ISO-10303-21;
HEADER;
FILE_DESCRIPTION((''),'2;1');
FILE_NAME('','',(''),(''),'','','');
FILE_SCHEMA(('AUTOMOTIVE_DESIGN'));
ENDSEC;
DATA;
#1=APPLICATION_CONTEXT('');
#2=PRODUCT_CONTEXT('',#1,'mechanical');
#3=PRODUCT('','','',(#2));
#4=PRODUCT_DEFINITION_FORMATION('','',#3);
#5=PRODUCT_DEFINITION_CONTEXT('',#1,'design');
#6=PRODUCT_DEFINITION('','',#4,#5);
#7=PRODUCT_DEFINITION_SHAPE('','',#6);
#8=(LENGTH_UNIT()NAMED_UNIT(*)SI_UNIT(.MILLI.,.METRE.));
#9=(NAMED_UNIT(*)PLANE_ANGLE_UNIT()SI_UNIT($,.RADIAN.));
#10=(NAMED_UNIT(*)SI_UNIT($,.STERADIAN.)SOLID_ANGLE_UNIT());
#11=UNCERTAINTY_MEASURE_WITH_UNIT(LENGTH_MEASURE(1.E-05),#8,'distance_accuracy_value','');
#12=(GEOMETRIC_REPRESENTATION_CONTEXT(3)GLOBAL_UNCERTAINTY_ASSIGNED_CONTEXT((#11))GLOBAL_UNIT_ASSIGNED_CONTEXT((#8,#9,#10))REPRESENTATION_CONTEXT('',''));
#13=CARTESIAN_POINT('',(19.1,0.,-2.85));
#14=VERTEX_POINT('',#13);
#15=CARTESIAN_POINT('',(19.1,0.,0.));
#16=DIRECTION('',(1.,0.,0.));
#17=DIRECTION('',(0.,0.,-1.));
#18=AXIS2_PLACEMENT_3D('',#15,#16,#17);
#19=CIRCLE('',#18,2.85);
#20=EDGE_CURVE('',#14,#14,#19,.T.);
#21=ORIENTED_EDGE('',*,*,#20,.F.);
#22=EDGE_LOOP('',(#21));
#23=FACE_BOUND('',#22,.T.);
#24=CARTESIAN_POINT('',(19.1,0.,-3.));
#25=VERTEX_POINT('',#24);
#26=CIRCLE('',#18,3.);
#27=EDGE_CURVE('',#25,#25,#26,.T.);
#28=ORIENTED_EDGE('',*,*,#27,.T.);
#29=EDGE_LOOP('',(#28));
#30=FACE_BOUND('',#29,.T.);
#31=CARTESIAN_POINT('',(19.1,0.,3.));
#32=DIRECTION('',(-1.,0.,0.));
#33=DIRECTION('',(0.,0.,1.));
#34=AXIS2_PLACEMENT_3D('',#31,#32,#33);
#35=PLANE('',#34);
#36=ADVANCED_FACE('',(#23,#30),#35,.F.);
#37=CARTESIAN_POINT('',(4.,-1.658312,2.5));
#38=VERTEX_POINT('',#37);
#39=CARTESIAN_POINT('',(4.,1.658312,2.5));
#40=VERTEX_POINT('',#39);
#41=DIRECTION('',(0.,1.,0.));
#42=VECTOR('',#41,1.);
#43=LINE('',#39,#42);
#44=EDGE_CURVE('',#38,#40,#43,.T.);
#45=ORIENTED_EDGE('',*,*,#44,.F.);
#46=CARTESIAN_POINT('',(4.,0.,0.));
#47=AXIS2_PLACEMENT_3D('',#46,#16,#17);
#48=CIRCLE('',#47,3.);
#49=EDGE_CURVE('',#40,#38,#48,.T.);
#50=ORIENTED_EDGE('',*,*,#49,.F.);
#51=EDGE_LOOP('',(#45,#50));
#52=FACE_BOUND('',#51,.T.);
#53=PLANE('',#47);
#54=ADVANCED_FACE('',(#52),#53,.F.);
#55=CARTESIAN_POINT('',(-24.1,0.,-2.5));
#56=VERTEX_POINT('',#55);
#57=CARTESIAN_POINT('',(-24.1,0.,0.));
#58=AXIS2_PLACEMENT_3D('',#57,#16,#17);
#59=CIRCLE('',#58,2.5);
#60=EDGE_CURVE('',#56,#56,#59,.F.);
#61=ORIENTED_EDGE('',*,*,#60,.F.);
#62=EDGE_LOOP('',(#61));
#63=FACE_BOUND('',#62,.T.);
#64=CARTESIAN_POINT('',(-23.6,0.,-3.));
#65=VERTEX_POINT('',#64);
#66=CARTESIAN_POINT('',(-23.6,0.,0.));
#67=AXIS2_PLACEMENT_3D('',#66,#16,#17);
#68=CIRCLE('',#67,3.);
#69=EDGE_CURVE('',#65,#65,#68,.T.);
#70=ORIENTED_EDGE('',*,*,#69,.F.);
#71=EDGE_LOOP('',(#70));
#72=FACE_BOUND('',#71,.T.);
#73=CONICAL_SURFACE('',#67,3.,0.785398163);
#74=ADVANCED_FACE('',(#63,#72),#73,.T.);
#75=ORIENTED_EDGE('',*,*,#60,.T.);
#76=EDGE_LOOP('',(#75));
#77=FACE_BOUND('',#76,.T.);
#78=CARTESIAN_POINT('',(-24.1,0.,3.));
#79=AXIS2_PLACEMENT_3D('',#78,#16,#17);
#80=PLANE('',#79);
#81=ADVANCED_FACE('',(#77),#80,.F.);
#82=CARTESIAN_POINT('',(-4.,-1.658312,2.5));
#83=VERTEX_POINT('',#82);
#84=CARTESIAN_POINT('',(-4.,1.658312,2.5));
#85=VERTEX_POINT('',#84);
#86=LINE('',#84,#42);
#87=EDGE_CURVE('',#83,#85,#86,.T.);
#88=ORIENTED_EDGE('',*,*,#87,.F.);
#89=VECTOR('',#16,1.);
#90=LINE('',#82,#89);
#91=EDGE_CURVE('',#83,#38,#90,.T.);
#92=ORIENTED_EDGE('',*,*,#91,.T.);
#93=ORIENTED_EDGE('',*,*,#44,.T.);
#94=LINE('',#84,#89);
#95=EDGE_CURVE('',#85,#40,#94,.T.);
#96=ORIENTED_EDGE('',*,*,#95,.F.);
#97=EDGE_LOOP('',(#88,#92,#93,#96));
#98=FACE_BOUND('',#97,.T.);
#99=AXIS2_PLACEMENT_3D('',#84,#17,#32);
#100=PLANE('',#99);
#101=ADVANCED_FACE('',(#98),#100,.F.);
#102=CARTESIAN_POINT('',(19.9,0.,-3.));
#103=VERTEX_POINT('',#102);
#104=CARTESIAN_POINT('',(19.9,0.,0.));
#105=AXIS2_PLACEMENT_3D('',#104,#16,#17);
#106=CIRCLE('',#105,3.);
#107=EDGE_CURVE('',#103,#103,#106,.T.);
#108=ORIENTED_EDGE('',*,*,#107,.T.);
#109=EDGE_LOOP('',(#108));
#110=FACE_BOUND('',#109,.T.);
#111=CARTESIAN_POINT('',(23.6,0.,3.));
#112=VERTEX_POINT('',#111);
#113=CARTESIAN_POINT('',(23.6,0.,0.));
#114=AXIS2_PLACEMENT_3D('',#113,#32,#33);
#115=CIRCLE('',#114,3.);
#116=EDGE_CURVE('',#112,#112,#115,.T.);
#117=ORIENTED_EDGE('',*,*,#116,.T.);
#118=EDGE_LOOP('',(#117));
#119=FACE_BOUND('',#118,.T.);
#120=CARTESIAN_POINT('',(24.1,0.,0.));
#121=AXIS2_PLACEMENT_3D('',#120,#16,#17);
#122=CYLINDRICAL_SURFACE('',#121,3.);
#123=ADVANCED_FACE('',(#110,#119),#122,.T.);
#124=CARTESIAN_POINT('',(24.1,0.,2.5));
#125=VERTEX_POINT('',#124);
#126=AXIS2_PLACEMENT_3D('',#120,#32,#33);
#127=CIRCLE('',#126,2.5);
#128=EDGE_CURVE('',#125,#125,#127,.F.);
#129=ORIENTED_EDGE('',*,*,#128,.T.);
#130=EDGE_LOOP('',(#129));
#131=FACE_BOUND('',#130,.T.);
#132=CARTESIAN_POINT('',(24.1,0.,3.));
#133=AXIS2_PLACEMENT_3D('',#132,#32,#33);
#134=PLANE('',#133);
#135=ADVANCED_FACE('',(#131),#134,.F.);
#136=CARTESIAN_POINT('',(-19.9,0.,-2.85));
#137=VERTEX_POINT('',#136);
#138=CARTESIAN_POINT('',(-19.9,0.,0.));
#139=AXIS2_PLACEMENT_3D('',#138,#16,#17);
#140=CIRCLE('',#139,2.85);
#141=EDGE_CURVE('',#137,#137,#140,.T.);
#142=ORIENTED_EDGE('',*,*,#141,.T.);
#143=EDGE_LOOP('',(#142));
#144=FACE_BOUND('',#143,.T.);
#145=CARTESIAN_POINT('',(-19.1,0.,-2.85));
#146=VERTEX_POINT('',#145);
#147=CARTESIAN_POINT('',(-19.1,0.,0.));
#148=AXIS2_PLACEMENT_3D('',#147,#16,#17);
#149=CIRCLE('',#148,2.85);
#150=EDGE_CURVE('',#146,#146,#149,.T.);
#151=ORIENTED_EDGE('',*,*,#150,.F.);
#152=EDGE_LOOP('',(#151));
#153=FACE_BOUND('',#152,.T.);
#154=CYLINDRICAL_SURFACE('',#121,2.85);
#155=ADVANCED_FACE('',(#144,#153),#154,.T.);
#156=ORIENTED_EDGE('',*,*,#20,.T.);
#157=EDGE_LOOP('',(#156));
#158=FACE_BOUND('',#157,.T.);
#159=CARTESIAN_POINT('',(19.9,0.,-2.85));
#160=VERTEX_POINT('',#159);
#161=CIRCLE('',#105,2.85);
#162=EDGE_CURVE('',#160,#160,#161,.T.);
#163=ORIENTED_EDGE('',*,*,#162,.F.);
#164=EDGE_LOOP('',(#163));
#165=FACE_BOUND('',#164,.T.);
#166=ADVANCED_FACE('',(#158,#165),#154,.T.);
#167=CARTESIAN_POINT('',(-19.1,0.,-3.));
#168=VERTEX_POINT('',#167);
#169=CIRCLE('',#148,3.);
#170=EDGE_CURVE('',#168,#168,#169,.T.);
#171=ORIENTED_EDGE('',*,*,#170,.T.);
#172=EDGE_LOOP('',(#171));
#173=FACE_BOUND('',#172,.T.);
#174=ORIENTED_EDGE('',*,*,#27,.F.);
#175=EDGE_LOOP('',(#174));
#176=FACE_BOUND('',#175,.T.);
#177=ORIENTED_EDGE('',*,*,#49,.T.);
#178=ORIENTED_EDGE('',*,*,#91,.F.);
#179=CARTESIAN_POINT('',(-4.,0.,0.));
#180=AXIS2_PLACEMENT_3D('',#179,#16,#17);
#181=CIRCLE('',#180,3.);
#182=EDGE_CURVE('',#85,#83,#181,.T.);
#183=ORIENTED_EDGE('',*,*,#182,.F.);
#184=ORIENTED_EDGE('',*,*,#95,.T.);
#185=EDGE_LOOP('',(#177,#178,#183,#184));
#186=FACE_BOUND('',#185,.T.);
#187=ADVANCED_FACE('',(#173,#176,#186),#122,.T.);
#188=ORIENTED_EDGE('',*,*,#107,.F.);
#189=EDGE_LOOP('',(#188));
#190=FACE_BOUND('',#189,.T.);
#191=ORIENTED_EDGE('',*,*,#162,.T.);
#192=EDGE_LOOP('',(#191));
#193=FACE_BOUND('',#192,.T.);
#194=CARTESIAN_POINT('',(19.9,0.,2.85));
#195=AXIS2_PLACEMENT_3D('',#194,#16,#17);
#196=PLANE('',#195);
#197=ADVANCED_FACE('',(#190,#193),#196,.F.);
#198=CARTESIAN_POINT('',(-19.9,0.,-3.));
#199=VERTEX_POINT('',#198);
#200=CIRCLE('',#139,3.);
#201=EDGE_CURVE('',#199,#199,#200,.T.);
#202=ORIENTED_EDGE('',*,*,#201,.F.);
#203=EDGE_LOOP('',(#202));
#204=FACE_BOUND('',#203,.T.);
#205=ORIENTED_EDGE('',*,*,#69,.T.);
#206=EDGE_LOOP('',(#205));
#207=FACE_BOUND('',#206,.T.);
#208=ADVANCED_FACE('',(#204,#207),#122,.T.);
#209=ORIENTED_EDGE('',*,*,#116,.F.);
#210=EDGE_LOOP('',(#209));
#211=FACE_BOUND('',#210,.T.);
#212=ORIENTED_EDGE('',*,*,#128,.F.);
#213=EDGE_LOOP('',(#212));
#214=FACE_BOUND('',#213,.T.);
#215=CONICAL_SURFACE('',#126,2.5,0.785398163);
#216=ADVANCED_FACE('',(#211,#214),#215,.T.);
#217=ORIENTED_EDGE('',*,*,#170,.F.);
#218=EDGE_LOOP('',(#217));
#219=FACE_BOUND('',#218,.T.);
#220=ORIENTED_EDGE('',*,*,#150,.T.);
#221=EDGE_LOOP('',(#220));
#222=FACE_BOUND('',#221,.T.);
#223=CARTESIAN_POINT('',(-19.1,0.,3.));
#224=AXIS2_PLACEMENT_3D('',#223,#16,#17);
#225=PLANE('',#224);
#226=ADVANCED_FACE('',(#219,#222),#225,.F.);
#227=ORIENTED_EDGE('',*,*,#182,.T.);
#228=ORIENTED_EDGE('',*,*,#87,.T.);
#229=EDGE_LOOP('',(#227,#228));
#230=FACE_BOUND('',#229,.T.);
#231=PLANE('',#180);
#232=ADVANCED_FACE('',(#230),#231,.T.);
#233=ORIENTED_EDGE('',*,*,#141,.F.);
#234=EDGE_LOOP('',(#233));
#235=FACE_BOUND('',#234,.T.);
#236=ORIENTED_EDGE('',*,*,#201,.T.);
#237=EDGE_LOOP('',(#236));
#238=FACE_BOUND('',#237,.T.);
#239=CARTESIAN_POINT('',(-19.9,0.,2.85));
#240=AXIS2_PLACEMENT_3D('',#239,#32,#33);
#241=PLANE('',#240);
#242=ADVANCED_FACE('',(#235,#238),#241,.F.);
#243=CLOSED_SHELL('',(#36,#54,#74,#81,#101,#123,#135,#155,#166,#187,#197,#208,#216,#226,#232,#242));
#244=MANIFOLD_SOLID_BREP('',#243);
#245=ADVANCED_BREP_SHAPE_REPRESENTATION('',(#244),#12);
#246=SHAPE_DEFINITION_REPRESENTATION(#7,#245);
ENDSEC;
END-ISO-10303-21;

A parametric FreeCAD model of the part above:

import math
import FreeCAD as App
import Part
import Sketcher

V = App.Vector


def edges_at(feature, points):
    """Names of the edges that pass closest to the given points."""
    edges = feature.Shape.Edges
    near = lambda p: min(range(len(edges)), key=lambda i: edges[i].distToShape(Part.Vertex(*p))[0])
    return sorted({f"Edge{near(p) + 1}" for p in points})

doc = App.newDocument("Part")
body = doc.addObject("PartDesign::Body", "Body")

sketch1 = body.newObject("Sketcher::SketchObject", "Sketch")
sketch1.AttachmentSupport = (doc.getObject("XZ_Plane"), [""])
sketch1.MapMode = "FlatFace"
sketch1.addGeometry([
    Part.LineSegment(V(-19.1, 3, 0), V(19.1, 3, 0)),
    Part.LineSegment(V(19.1, 3, 0), V(19.1, 2.85, 0)),
    Part.LineSegment(V(19.1, 2.85, 0), V(19.9, 2.85, 0)),
    Part.LineSegment(V(19.9, 2.85, 0), V(19.9, 3, 0)),
    Part.LineSegment(V(19.9, 3, 0), V(24.1, 3, 0)),
    Part.LineSegment(V(24.1, 3, 0), V(24.1, 0, 0)),
    Part.LineSegment(V(24.1, 0, 0), V(-24.1, 0, 0)),
    Part.LineSegment(V(-24.1, 0, 0), V(-24.1, 3, 0)),
    Part.LineSegment(V(-24.1, 3, 0), V(-19.9, 3, 0)),
    Part.LineSegment(V(-19.9, 3, 0), V(-19.9, 2.85, 0)),
    Part.LineSegment(V(-19.9, 2.85, 0), V(-19.1, 2.85, 0)),
    Part.LineSegment(V(-19.1, 2.85, 0), V(-19.1, 3, 0)),
], False)
sketch1.addConstraint([
    Sketcher.Constraint("Coincident", 0, 2, 1, 1),
    Sketcher.Constraint("Coincident", 1, 2, 2, 1),
    Sketcher.Constraint("Coincident", 2, 2, 3, 1),
    Sketcher.Constraint("Coincident", 3, 2, 4, 1),
    Sketcher.Constraint("Coincident", 4, 2, 5, 1),
    Sketcher.Constraint("Coincident", 5, 2, 6, 1),
    Sketcher.Constraint("Coincident", 6, 2, 7, 1),
    Sketcher.Constraint("Coincident", 7, 2, 8, 1),
    Sketcher.Constraint("Coincident", 8, 2, 9, 1),
    Sketcher.Constraint("Coincident", 9, 2, 10, 1),
    Sketcher.Constraint("Coincident", 10, 2, 11, 1),
    Sketcher.Constraint("Coincident", 11, 2, 0, 1),
    Sketcher.Constraint("Horizontal", 0),
    Sketcher.Constraint("Vertical", 1),
    Sketcher.Constraint("Horizontal", 2),
    Sketcher.Constraint("Vertical", 3),
    Sketcher.Constraint("Horizontal", 4),
    Sketcher.Constraint("Vertical", 5),
    Sketcher.Constraint("Horizontal", 6),
    Sketcher.Constraint("Vertical", 7),
    Sketcher.Constraint("Horizontal", 8),
    Sketcher.Constraint("Vertical", 9),
    Sketcher.Constraint("Horizontal", 10),
    Sketcher.Constraint("Vertical", 11),
    Sketcher.Constraint("Symmetric", 5, 2, 6, 2, -1, 1),
    Sketcher.Constraint("Symmetric", 3, 2, 8, 2, -2),
    Sketcher.Constraint("Symmetric", 1, 2, 10, 2, -2),
    Sketcher.Constraint("Horizontal", 0, 2, 3, 2),
    Sketcher.Constraint("DistanceY", 5, 2, 5, 1, 3.0),
    Sketcher.Constraint("DistanceX", 0, 1, 0, 2, 38.2),
    Sketcher.Constraint("DistanceX", 2, 1, 2, 2, 0.8),
    Sketcher.Constraint("DistanceX", 4, 1, 4, 2, 4.2),
    Sketcher.Constraint("DistanceY", 1, 2, 1, 1, 0.15),
])
revolution = body.newObject("PartDesign::Revolution", "Revolution")
revolution.Profile = sketch1
revolution.ReferenceAxis = (sketch1, ["H_Axis"])
revolution.Angle = 360

sketch2 = body.newObject("Sketcher::SketchObject", "Sketch001")
sketch2.AttachmentSupport = (doc.getObject("YZ_Plane"), [""])
sketch2.MapMode = "FlatFace"
sketch2.addGeometry([
    Part.LineSegment(V(-1.658312, 2.5, 0), V(1.658312, 2.5, 0)),
    Part.ArcOfCircle(Part.Circle(V(0, 0, 0), V(0, 0, 1), 3), math.radians(56.44269), math.radians(123.55731)),
], False)
sketch2.addConstraint([
    Sketcher.Constraint("Coincident", 0, 1, 1, 2),
    Sketcher.Constraint("Coincident", 1, 1, 0, 2),
    Sketcher.Constraint("Horizontal", 0),
    Sketcher.Constraint("Coincident", 1, 3, -1, 1),
    Sketcher.Constraint("Radius", 1, 3.0),
    Sketcher.Constraint("DistanceY", -1, 1, 0, 1, 2.5),
])
pocket1 = body.newObject("PartDesign::Pocket", "Pocket")
pocket1.Profile = sketch2
pocket1.Length = 8
pocket1.Midplane = True
doc.recompute()

chamfer = body.newObject("PartDesign::Chamfer", "Chamfer")
chamfer.Base = (pocket1, edges_at(pocket1, [(24.1, 0, 3), (-24.1, 0, 3)]))
chamfer.Size = 0.5

doc.recompute()
